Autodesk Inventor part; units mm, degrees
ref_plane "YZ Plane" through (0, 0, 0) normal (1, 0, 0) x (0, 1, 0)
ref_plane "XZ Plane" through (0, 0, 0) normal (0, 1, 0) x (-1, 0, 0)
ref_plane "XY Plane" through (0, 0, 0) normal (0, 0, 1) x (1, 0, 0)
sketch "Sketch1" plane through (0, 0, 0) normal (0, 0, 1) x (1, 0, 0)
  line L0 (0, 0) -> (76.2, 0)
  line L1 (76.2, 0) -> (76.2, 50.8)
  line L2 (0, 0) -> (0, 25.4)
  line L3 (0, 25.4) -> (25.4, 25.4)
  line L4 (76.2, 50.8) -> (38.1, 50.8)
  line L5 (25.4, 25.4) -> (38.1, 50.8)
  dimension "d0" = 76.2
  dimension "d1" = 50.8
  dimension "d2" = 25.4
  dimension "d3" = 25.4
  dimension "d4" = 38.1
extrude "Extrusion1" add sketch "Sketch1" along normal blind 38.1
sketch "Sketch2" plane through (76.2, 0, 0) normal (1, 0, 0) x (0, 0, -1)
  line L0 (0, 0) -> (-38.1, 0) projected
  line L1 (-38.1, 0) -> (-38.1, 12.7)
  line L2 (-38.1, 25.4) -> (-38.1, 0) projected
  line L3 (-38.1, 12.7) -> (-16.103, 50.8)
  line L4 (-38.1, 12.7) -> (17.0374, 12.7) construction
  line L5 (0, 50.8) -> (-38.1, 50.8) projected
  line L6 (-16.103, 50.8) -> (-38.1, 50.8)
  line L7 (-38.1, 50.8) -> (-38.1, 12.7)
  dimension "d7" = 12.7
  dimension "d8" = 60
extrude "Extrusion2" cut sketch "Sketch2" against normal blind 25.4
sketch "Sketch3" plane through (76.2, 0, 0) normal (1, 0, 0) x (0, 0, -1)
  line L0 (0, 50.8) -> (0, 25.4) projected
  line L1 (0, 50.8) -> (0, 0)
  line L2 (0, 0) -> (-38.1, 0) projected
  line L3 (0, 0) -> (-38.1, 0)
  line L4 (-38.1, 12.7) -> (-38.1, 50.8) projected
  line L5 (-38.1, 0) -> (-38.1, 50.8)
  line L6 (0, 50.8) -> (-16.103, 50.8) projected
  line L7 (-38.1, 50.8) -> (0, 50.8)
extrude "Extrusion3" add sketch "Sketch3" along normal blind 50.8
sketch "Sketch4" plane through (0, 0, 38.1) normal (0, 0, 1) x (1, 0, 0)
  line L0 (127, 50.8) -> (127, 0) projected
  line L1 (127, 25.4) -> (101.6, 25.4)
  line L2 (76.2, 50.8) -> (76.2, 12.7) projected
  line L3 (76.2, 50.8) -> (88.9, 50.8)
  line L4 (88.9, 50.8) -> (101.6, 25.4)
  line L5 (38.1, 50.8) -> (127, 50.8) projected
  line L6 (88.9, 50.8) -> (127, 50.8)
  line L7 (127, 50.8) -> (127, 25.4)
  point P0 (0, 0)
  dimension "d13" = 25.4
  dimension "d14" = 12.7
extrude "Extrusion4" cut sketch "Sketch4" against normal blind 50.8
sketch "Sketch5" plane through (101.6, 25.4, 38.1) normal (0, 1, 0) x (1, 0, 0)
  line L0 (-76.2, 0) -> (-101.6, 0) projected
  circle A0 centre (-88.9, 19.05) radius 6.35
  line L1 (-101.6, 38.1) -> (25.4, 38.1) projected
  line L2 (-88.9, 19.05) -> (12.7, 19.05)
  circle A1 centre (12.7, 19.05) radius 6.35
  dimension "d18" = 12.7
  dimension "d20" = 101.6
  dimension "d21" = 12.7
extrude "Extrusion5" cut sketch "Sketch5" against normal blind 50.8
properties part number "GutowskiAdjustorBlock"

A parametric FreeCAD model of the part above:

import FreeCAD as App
import Part
import Sketcher
Q = App.Units.Quantity


def add_polygon(sketch, points):
    """Adds a closed chain of lines whose ends are joined by coincident constraints."""
    first, n = sketch.GeometryCount, len(points)
    for a, b in zip(points, points[1:] + points[:1]):
        sketch.addGeometry(Part.LineSegment(App.Vector(*a, 0), App.Vector(*b, 0)), False)
    for i in range(n):
        sketch.addConstraint(Sketcher.Constraint("Coincident", first + i, 2, first + (i + 1) % n, 1))

doc = App.newDocument("Part")
params = doc.addObject("Spreadsheet::Sheet", "Params")
for row, (alias, value) in enumerate([
    ("sketch1_width", "3 in"),
    ("sketch1_width2", "1 in"),
    ("sketch1_height", "2 in"),
    ("sketch1_width3", "1.5 in"),
    ("pad1_length", "1.5 in"),
    ("sketch2_width", "1.5 in"),
    ("pocket1_length", "1 in"),
    ("sketch3_width", "2 in"),
    ("sketch3_height", "1.5 in"),
    ("pad2_length", "2 in"),
    ("sketch4_width", "1 in"),
    ("pocket2_length", "2 in"),
    ("sketch5_diameter", "0.5 in"),
    ("pocket3_length", "2 in"),
], start=1):
    params.set(f"A{row}", alias)
    params.set(f"B{row}", "=" + value)
    params.setAlias(f"B{row}", alias)

body = doc.addObject("PartDesign::Body", "Body")

# Sketch on XY plane
sketch1 = body.newObject("Sketcher::SketchObject", "Sketch")
sketch1.AttachmentSupport = (doc.getObject("XY_Plane"), [""])
sketch1.MapMode = "FlatFace"
add_polygon(sketch1, [(0, 25), (0, 0), (76, 0), (76, 51), (38, 51), (25, 25)])  # lines 0-5
sketch1.addConstraint([
    Sketcher.Constraint("Vertical", 0),
    Sketcher.Constraint("Horizontal", 1),
    Sketcher.Constraint("Vertical", 2),
    Sketcher.Constraint("Horizontal", 3),
    Sketcher.Constraint("Horizontal", 5),
    Sketcher.Constraint("Coincident", 0, 2, -1, 1),
    Sketcher.Constraint("Equal", 5, 0),
    Sketcher.Constraint("DistanceX", 1, 1, 1, 2, Q("3 in")),
    Sketcher.Constraint("DistanceX", 5, 2, 5, 1, Q("1 in")),
    Sketcher.Constraint("DistanceY", 2, 1, 2, 2, Q("2 in")),
    Sketcher.Constraint("DistanceX", 3, 2, 3, 1, Q("1.5 in")),
])
sketch1.setExpression("Constraints[13]", "Params.sketch1_width")
sketch1.setExpression("Constraints[14]", "Params.sketch1_width2")
sketch1.setExpression("Constraints[15]", "Params.sketch1_height")
sketch1.setExpression("Constraints[16]", "Params.sketch1_width3")
pad1 = body.newObject("PartDesign::Pad", "Pad")
pad1.Profile = sketch1
pad1.setExpression("Length", "Params.pad1_length")

# Sketch on YZ plane
sketch2 = body.newObject("Sketcher::SketchObject", "Sketch001")
sketch2.AttachmentSupport = (doc.getObject("YZ_Plane"), [""])
sketch2.MapMode = "FlatFace"
sketch2.AttachmentOffset = App.Placement(App.Vector(0, 0, 3 * 25.4), App.Rotation())
add_polygon(sketch2, [(51, 38), (13, 38), (51, 16)])  # lines 0-2
sketch2.addConstraint([
    Sketcher.Constraint("Horizontal", 0),
    Sketcher.Constraint("Vertical", 2),
    Sketcher.Constraint("DistanceX", -1, 1, 0, 2, Q("0.5 in")),
    Sketcher.Constraint("DistanceX", 0, 2, 0, 1, Q("1.5 in")),
    Sketcher.Constraint("Angle", 1, Q("-30 deg")),
    Sketcher.Constraint("DistanceY", -1, 1, 0, 2, Q("1.5 in")),
])
sketch2.setExpression("Constraints[6]", "Params.sketch2_width")
pocket1 = body.newObject("PartDesign::Pocket", "Pocket")
pocket1.Profile = sketch2
pocket1.setExpression("Length", "Params.pocket1_length")

# Sketch on YZ plane
sketch3 = body.newObject("Sketcher::SketchObject", "Sketch002")
sketch3.AttachmentSupport = (doc.getObject("YZ_Plane"), [""])
sketch3.MapMode = "FlatFace"
sketch3.AttachmentOffset = App.Placement(App.Vector(0, 0, 3 * 25.4), App.Rotation())
add_polygon(sketch3, [(0, 0), (51, 0), (51, 38), (0, 38)])  # lines 0-3
sketch3.addConstraint([
    Sketcher.Constraint("Horizontal", 0),
    Sketcher.Constraint("Vertical", 1),
    Sketcher.Constraint("Horizontal", 2),
    Sketcher.Constraint("Vertical", 3),
    Sketcher.Constraint("Coincident", 3, 2, -1, 1),
    Sketcher.Constraint("DistanceX", 0, 1, 0, 2, Q("2 in")),
    Sketcher.Constraint("DistanceY", 1, 1, 1, 2, Q("1.5 in")),
])
sketch3.setExpression("Constraints[9]", "Params.sketch3_width")
sketch3.setExpression("Constraints[10]", "Params.sketch3_height")
pad2 = body.newObject("PartDesign::Pad", "Pad001")
pad2.Profile = sketch3
pad2.setExpression("Length", "Params.pad2_length")

# Sketch on XY plane
sketch4 = body.newObject("Sketcher::SketchObject", "Sketch003")
sketch4.AttachmentSupport = (doc.getObject("XY_Plane"), [""])
sketch4.MapMode = "FlatFace"
sketch4.AttachmentOffset = App.Placement(App.Vector(0, 0, 1.5 * 25.4), App.Rotation())
add_polygon(sketch4, [(127, 25), (127, 51), (89, 51), (102, 25)])  # lines 0-3
sketch4.addConstraint([
    Sketcher.Constraint("Vertical", 0),
    Sketcher.Constraint("Horizontal", 1),
    Sketcher.Constraint("Horizontal", 3),
    Sketcher.Constraint("Equal", 3, 0),
    Sketcher.Constraint("DistanceX", 3, 1, 3, 2, Q("1 in")),
    Sketcher.Constraint("DistanceY", -1, 1, 2, 2, Q("1 in")),
    Sketcher.Constraint("DistanceX", 1, 2, 2, 2, Q("0.5 in")),
    Sketcher.Constraint("DistanceX", -1, 1, 0, 2, Q("5 in")),
])
sketch4.setExpression("Constraints[8]", "Params.sketch4_width")
pocket2 = body.newObject("PartDesign::Pocket", "Pocket001")
pocket2.Profile = sketch4
pocket2.setExpression("Length", "Params.pocket2_length")

# Sketch on XZ plane
sketch5 = body.newObject("Sketcher::SketchObject", "Sketch004")
sketch5.AttachmentSupport = (doc.getObject("XZ_Plane"), [""])
sketch5.MapMode = "FlatFace"
sketch5.AttachmentOffset = App.Placement(App.Vector(0, 0, -1 * 25.4), App.Rotation())
sketch5.addGeometry([
    Part.Circle(App.Vector(13, 19, 0), App.Vector(0, 0, 1), 6),
    Part.Circle(App.Vector(114, 19, 0), App.Vector(0, 0, 1), 6),
], False)
sketch5.addConstraint([
    Sketcher.Constraint("Equal", 0, 1),
    Sketcher.Constraint("Horizontal", 0, 3, 1, 3),
    Sketcher.Constraint("Diameter", 0, Q("0.5 in")),
    Sketcher.Constraint("DistanceX", 0, 3, 1, 3, Q("4 in")),
    Sketcher.Constraint("DistanceX", -1, 1, 0, 3, Q("0.5 in")),
    Sketcher.Constraint("DistanceY", -1, 1, 0, 3, Q("0.75 in")),
])
sketch5.setExpression("Constraints[2]", "Params.sketch5_diameter")
pocket3 = body.newObject("PartDesign::Pocket", "Pocket002")
pocket3.Profile = sketch5
pocket3.setExpression("Length", "Params.pocket3_length")
pocket3.Reversed = True

doc.recompute()
